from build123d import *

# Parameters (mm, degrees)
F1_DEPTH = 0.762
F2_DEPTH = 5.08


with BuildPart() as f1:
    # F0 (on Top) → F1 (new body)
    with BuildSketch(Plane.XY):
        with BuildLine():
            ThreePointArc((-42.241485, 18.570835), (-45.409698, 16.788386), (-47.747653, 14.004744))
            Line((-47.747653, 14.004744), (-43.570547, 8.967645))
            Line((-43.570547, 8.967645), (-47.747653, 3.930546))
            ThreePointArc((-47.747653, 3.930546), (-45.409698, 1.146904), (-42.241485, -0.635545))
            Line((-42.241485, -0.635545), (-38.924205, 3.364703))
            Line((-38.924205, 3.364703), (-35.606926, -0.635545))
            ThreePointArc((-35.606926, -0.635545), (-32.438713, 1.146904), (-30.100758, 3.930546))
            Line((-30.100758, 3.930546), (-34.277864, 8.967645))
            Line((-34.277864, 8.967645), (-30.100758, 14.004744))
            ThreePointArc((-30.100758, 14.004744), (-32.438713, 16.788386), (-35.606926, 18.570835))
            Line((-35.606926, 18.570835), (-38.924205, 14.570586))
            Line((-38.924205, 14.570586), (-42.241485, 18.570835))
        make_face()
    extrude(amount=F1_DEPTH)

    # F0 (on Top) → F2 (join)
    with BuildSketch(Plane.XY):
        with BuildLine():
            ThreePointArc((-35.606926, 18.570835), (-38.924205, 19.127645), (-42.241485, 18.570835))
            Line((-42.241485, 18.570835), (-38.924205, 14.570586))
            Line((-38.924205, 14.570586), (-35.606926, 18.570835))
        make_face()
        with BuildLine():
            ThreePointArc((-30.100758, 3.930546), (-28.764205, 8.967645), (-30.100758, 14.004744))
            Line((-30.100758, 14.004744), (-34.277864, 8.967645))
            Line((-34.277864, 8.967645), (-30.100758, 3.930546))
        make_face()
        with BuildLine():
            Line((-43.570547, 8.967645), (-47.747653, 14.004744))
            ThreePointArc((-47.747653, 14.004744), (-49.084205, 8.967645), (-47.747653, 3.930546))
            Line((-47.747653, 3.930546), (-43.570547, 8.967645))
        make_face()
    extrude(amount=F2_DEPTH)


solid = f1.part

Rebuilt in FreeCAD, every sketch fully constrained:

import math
import FreeCAD as App
import Part
import Sketcher
from FreeCAD import Vector
Q = App.Units.Quantity

doc = App.newDocument("Part")
body = doc.addObject("PartDesign::Body", "Body")

# Sketch on XY plane
sketch1 = body.newObject("Sketcher::SketchObject", "Sketch")
sketch1.AttachmentSupport = (doc.getObject("XY_Plane"), [""])
sketch1.MapMode = "FlatFace"
sketch1.addGeometry([
    Part.ArcOfCircle(Part.Circle(Vector(-39, 9, 0), Vector(0, 0, 1), 10), math.radians(109), math.radians(150)),  # 0
    Part.LineSegment(Vector(-48, 14, 0), Vector(-44, 9, 0)),  # 1
    Part.LineSegment(Vector(-44, 9, 0), Vector(-48, 4, 0)),  # 2
    Part.ArcOfCircle(Part.Circle(Vector(-39, 9, 0), Vector(0, 0, 1), 10), math.radians(-150), math.radians(-109)),  # 3
    Part.LineSegment(Vector(-42, -1, 0), Vector(-39, 3, 0)),  # 4
    Part.LineSegment(Vector(-39, 3, 0), Vector(-36, -1, 0)),  # 5
    Part.ArcOfCircle(Part.Circle(Vector(-39, 9, 0), Vector(0, 0, 1), 10), math.radians(-71), math.radians(-30)),  # 6
    Part.LineSegment(Vector(-30, 4, 0), Vector(-34, 9, 0)),  # 7
    Part.LineSegment(Vector(-34, 9, 0), Vector(-30, 14, 0)),  # 8
    Part.ArcOfCircle(Part.Circle(Vector(-39, 9, 0), Vector(0, 0, 1), 10), math.radians(30), math.radians(71)),  # 9
    Part.LineSegment(Vector(-36, 19, 0), Vector(-39, 15, 0)),  # 10
    Part.LineSegment(Vector(-39, 15, 0), Vector(-42, 19, 0)),  # 11
], False)
sketch1.addConstraint([
    Sketcher.Constraint("Coincident", 0, 2, 1, 1),
    Sketcher.Constraint("Coincident", 1, 2, 2, 1),
    Sketcher.Constraint("Coincident", 2, 2, 3, 1),
    Sketcher.Constraint("Coincident", 3, 2, 4, 1),
    Sketcher.Constraint("Coincident", 4, 2, 5, 1),
    Sketcher.Constraint("Coincident", 5, 2, 6, 1),
    Sketcher.Constraint("Coincident", 6, 2, 7, 1),
    Sketcher.Constraint("Coincident", 7, 2, 8, 1),
    Sketcher.Constraint("Coincident", 8, 2, 9, 1),
    Sketcher.Constraint("Coincident", 9, 2, 10, 1),
    Sketcher.Constraint("Coincident", 10, 2, 11, 1),
    Sketcher.Constraint("Coincident", 11, 2, 0, 1),
    Sketcher.Constraint("Coincident", 3, 3, 0, 3),
    Sketcher.Constraint("Coincident", 6, 3, 0, 3),
    Sketcher.Constraint("Coincident", 9, 3, 0, 3),
    Sketcher.Constraint("Equal", 0, 3),
    Sketcher.Constraint("Equal", 3, 6),
    Sketcher.Constraint("Equal", 6, 9),
    Sketcher.Constraint("Parallel", 2, 4),
    Sketcher.Constraint("Parallel", 1, 5),
    Sketcher.Constraint("Parallel", 5, 7),
    Sketcher.Constraint("Parallel", 4, 8),
    Sketcher.Constraint("Parallel", 8, 10),
    Sketcher.Constraint("Parallel", 7, 11),
    Sketcher.Constraint("Horizontal", 3, 2, 5, 2),
    Sketcher.Constraint("Horizontal", 2, 2, 6, 2),
    Sketcher.Constraint("Horizontal", 1, 2, 7, 2),
    Sketcher.Constraint("Horizontal", 0, 2, 8, 2),
    Sketcher.Constraint("Horizontal", 9, 2, 11, 2),
    Sketcher.Constraint("Vertical", 0, 2, 2, 2),
    Sketcher.Constraint("Vertical", 5, 2, 9, 2),
    Sketcher.Constraint("Radius", 0, Q("0.3999998 in")),
    Sketcher.Constraint("DistanceY", 1, 2, 0, 2, Q("5.037099 mm")),
    Sketcher.Constraint("Distance", 4, Q("5.196762 mm")),
    Sketcher.Constraint("DistanceY", -1, 1, 0, 3, Q("8.967649 mm")),
    Sketcher.Constraint("DistanceX", 6, 2, -1, 1, Q("30.100758 mm")),
    Sketcher.Constraint("DistanceX", 1, 2, 0, 3, Q("4.646339 mm")),
])
pad1 = body.newObject("PartDesign::Pad", "Pad")
pad1.Profile = sketch1
pad1.Length = Q("0.03 in")

# Sketch on XY plane
sketch2 = body.newObject("Sketcher::SketchObject", "Sketch001")
sketch2.AttachmentSupport = (doc.getObject("XY_Plane"), [""])
sketch2.MapMode = "FlatFace"
sketch2.addGeometry([
    Part.ArcOfCircle(Part.Circle(Vector(-39, 9, 0), Vector(0, 0, 1), 10), math.radians(71), math.radians(109)),  # 0
    Part.LineSegment(Vector(-42, 19, 0), Vector(-39, 15, 0)),  # 1
    Part.LineSegment(Vector(-39, 15, 0), Vector(-36, 19, 0)),  # 2
    Part.ArcOfCircle(Part.Circle(Vector(-39, 9, 0), Vector(0, 0, 1), 10), math.radians(-30), math.radians(30)),  # 3
    Part.LineSegment(Vector(-30, 14, 0), Vector(-34, 9, 0)),  # 4
    Part.LineSegment(Vector(-34, 9, 0), Vector(-30, 4, 0)),  # 5
    Part.LineSegment(Vector(-44, 9, 0), Vector(-48, 14, 0)),  # 6
    Part.ArcOfCircle(Part.Circle(Vector(-39, 9, 0), Vector(0, 0, 1), 10), math.radians(150), math.radians(210)),  # 7
    Part.LineSegment(Vector(-48, 4, 0), Vector(-44, 9, 0)),  # 8
], False)
sketch2.addConstraint([
    Sketcher.Constraint("Coincident", 0, 2, 1, 1),
    Sketcher.Constraint("Coincident", 1, 2, 2, 1),
    Sketcher.Constraint("Coincident", 2, 2, 0, 1),
    Sketcher.Constraint("Coincident", 3, 2, 4, 1),
    Sketcher.Constraint("Coincident", 4, 2, 5, 1),
    Sketcher.Constraint("Coincident", 5, 2, 3, 1),
    Sketcher.Constraint("Coincident", 6, 2, 7, 1),
    Sketcher.Constraint("Coincident", 7, 2, 8, 1),
    Sketcher.Constraint("Coincident", 8, 2, 6, 1),
    Sketcher.Constraint("Coincident", 3, 3, 0, 3),
    Sketcher.Constraint("Coincident", 7, 3, 0, 3),
    Sketcher.Constraint("Equal", 0, 7),
    Sketcher.Constraint("Parallel", 2, 4),
    Sketcher.Constraint("Parallel", 1, 5),
    Sketcher.Constraint("Parallel", 5, 6),
    Sketcher.Constraint("Parallel", 4, 8),
    Sketcher.Constraint("Horizontal", 0, 2, 2, 2),
    Sketcher.Constraint("Horizontal", 7, 3, 4, 2),
    Sketcher.Constraint("Horizontal", 3, 2, 6, 2),
    Sketcher.Constraint("Horizontal", 5, 2, 7, 2),
    Sketcher.Constraint("Horizontal", 4, 2, 8, 2),
    Sketcher.Constraint("Radius", 0, Q("0.4000001 in")),
    Sketcher.Constraint("Radius", 3, Q("10.159994 mm")),
    Sketcher.Constraint("DistanceX", 3, 3, -1, 1, Q("38.924199 mm")),
    Sketcher.Constraint("DistanceY", 3, 3, 3, 2, Q("5.037099 mm")),
    Sketcher.Constraint("Distance", 2, Q("5.196762 mm")),
    Sketcher.Constraint("DistanceX", 0, 2, 7, 3, Q("3.31728 mm")),
    Sketcher.Constraint("DistanceY", -1, 1, 0, 3, Q("8.967644 mm")),
])
pad2 = body.newObject("PartDesign::Pad", "Pad001")
pad2.Profile = sketch2
pad2.Length = Q("0.2 in")

doc.recompute()
